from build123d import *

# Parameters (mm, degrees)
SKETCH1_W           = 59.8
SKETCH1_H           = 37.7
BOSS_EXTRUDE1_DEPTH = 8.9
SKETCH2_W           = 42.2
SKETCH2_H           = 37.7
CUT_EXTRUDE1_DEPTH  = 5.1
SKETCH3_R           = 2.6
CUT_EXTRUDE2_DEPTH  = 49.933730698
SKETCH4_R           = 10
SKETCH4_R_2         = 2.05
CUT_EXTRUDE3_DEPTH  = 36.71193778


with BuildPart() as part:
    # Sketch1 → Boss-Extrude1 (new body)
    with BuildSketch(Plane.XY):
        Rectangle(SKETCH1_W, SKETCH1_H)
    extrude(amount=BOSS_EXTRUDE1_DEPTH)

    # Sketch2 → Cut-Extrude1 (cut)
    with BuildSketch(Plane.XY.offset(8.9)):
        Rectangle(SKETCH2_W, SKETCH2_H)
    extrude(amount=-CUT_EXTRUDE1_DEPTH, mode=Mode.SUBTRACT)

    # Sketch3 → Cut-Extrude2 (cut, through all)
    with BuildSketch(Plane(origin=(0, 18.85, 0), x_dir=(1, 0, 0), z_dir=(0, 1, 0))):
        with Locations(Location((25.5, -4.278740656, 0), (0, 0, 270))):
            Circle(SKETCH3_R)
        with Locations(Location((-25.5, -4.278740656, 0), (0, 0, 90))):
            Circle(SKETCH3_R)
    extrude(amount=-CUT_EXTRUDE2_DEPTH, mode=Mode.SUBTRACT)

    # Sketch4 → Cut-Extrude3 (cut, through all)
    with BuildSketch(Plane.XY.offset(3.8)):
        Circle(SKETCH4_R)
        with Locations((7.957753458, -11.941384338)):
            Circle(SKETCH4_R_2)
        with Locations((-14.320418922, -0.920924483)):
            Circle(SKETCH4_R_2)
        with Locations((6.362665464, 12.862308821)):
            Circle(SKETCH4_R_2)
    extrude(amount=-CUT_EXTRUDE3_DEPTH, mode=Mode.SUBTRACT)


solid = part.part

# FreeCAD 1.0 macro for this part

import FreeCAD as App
import Part
import Sketcher
Q = App.Units.Quantity

doc = App.newDocument("Part")
body = doc.addObject("PartDesign::Body", "Body")

sketch1 = body.newObject("Sketcher::SketchObject", "Sketch")
sketch1.AttachmentSupport = (doc.getObject("XY_Plane"), [""])
sketch1.MapMode = "FlatFace"
sketch1.addGeometry([
    Part.LineSegment(App.Vector(-30, 19, 0), App.Vector(-30, -19, 0)),
    Part.LineSegment(App.Vector(-30, -19, 0), App.Vector(30, -19, 0)),
    Part.LineSegment(App.Vector(30, -19, 0), App.Vector(30, 19, 0)),
    Part.LineSegment(App.Vector(30, 19, 0), App.Vector(-30, 19, 0)),
], False)
sketch1.addConstraint([
    Sketcher.Constraint("Coincident", 0, 2, 1, 1),
    Sketcher.Constraint("Coincident", 1, 2, 2, 1),
    Sketcher.Constraint("Coincident", 2, 2, 3, 1),
    Sketcher.Constraint("Coincident", 3, 2, 0, 1),
    Sketcher.Constraint("Vertical", 0),
    Sketcher.Constraint("Horizontal", 1),
    Sketcher.Constraint("Vertical", 2),
    Sketcher.Constraint("Horizontal", 3),
    Sketcher.Constraint("Symmetric", 0, 2, 2, 2, -1, 1),
    Sketcher.Constraint("DistanceX", 1, 1, 1, 2, Q("59.8 mm")),
    Sketcher.Constraint("DistanceY", 0, 2, 0, 1, Q("37.7 mm")),
])
pad1 = body.newObject("PartDesign::Pad", "Pad")
pad1.Profile = sketch1
pad1.Length = 8.9

sketch2 = body.newObject("Sketcher::SketchObject", "Sketch001")
sketch2.AttachmentSupport = (doc.getObject("XY_Plane"), [""])
sketch2.MapMode = "FlatFace"
sketch2.AttachmentOffset = App.Placement(App.Vector(0, 0, 8.9), App.Rotation())
sketch2.addGeometry([
    Part.LineSegment(App.Vector(-21, 19, 0), App.Vector(-21, -19, 0)),
    Part.LineSegment(App.Vector(-21, -19, 0), App.Vector(21, -19, 0)),
    Part.LineSegment(App.Vector(21, -19, 0), App.Vector(21, 19, 0)),
    Part.LineSegment(App.Vector(21, 19, 0), App.Vector(-21, 19, 0)),
], False)
sketch2.addConstraint([
    Sketcher.Constraint("Coincident", 0, 2, 1, 1),
    Sketcher.Constraint("Coincident", 1, 2, 2, 1),
    Sketcher.Constraint("Coincident", 2, 2, 3, 1),
    Sketcher.Constraint("Coincident", 3, 2, 0, 1),
    Sketcher.Constraint("Vertical", 0),
    Sketcher.Constraint("Horizontal", 1),
    Sketcher.Constraint("Vertical", 2),
    Sketcher.Constraint("Horizontal", 3),
    Sketcher.Constraint("Symmetric", 0, 2, 2, 2, -1, 1),
    Sketcher.Constraint("DistanceX", 1, 1, 1, 2, Q("42.2 mm")),
    Sketcher.Constraint("DistanceY", 0, 2, 0, 1, Q("37.7 mm")),
])
pocket1 = body.newObject("PartDesign::Pocket", "Pocket")
pocket1.Profile = sketch2
pocket1.Length = 5.1

sketch3 = body.newObject("Sketcher::SketchObject", "Sketch002")
sketch3.AttachmentSupport = (doc.getObject("XZ_Plane"), [""])
sketch3.MapMode = "FlatFace"
sketch3.AttachmentOffset = App.Placement(App.Vector(0, 0, -18.85), App.Rotation())
sketch3.addGeometry([
    Part.Circle(App.Vector(25.5, 4.3, 0), App.Vector(0, 0, 1), 2.6),
    Part.Circle(App.Vector(-25.5, 4.3, 0), App.Vector(0, 0, 1), 2.6),
], False)
sketch3.addConstraint([
    Sketcher.Constraint("Equal", 0, 1),
    Sketcher.Constraint("Symmetric", 0, 3, 1, 3, -2),
    Sketcher.Constraint("Diameter", 0, Q("5.2 mm")),
    Sketcher.Constraint("DistanceX", 1, 3, 0, 3, Q("51 mm")),
    Sketcher.Constraint("DistanceY", -1, 1, 0, 3, Q("4.278741 mm")),
])
pocket2 = body.newObject("PartDesign::Pocket", "Pocket001")
pocket2.Profile = sketch3
pocket2.Type = "ThroughAll"
pocket2.Reversed = True

sketch4 = body.newObject("Sketcher::SketchObject", "Sketch003")
sketch4.AttachmentSupport = (doc.getObject("XY_Plane"), [""])
sketch4.MapMode = "FlatFace"
sketch4.AttachmentOffset = App.Placement(App.Vector(0, 0, 3.8), App.Rotation())
sketch4.addGeometry([
    Part.Circle(App.Vector(0, 0, 0), App.Vector(0, 0, 1), 10),
    Part.Circle(App.Vector(8, -11.9, 0), App.Vector(0, 0, 1), 2),
    Part.Circle(App.Vector(-14.3, -0.9, 0), App.Vector(0, 0, 1), 2),
    Part.Circle(App.Vector(6.4, 12.9, 0), App.Vector(0, 0, 1), 2),
], False)
sketch4.addConstraint([
    Sketcher.Constraint("Coincident", 0, 3, -1, 1),
    Sketcher.Constraint("Equal", 1, 2),
    Sketcher.Constraint("Equal", 2, 3),
    Sketcher.Constraint("Diameter", 0, Q("20 mm")),
    Sketcher.Constraint("Diameter", 1, Q("4.1 mm")),
    Sketcher.Constraint("DistanceX", 2, 3, -1, 1, Q("14.320419 mm")),
    Sketcher.Constraint("DistanceY", -1, 1, 3, 3, Q("12.862309 mm")),
    Sketcher.Constraint("DistanceY", 1, 3, 2, 3, Q("11.02046 mm")),
    Sketcher.Constraint("DistanceX", -1, 1, 1, 3, Q("7.957753 mm")),
    Sketcher.Constraint("DistanceY", 1, 3, -1, 1, Q("11.941384 mm")),
    Sketcher.Constraint("DistanceX", -1, 1, 3, 3, Q("6.362665 mm")),
])
pocket3 = body.newObject("PartDesign::Pocket", "Pocket002")
pocket3.Profile = sketch4
pocket3.Type = "ThroughAll"

doc.recompute()
